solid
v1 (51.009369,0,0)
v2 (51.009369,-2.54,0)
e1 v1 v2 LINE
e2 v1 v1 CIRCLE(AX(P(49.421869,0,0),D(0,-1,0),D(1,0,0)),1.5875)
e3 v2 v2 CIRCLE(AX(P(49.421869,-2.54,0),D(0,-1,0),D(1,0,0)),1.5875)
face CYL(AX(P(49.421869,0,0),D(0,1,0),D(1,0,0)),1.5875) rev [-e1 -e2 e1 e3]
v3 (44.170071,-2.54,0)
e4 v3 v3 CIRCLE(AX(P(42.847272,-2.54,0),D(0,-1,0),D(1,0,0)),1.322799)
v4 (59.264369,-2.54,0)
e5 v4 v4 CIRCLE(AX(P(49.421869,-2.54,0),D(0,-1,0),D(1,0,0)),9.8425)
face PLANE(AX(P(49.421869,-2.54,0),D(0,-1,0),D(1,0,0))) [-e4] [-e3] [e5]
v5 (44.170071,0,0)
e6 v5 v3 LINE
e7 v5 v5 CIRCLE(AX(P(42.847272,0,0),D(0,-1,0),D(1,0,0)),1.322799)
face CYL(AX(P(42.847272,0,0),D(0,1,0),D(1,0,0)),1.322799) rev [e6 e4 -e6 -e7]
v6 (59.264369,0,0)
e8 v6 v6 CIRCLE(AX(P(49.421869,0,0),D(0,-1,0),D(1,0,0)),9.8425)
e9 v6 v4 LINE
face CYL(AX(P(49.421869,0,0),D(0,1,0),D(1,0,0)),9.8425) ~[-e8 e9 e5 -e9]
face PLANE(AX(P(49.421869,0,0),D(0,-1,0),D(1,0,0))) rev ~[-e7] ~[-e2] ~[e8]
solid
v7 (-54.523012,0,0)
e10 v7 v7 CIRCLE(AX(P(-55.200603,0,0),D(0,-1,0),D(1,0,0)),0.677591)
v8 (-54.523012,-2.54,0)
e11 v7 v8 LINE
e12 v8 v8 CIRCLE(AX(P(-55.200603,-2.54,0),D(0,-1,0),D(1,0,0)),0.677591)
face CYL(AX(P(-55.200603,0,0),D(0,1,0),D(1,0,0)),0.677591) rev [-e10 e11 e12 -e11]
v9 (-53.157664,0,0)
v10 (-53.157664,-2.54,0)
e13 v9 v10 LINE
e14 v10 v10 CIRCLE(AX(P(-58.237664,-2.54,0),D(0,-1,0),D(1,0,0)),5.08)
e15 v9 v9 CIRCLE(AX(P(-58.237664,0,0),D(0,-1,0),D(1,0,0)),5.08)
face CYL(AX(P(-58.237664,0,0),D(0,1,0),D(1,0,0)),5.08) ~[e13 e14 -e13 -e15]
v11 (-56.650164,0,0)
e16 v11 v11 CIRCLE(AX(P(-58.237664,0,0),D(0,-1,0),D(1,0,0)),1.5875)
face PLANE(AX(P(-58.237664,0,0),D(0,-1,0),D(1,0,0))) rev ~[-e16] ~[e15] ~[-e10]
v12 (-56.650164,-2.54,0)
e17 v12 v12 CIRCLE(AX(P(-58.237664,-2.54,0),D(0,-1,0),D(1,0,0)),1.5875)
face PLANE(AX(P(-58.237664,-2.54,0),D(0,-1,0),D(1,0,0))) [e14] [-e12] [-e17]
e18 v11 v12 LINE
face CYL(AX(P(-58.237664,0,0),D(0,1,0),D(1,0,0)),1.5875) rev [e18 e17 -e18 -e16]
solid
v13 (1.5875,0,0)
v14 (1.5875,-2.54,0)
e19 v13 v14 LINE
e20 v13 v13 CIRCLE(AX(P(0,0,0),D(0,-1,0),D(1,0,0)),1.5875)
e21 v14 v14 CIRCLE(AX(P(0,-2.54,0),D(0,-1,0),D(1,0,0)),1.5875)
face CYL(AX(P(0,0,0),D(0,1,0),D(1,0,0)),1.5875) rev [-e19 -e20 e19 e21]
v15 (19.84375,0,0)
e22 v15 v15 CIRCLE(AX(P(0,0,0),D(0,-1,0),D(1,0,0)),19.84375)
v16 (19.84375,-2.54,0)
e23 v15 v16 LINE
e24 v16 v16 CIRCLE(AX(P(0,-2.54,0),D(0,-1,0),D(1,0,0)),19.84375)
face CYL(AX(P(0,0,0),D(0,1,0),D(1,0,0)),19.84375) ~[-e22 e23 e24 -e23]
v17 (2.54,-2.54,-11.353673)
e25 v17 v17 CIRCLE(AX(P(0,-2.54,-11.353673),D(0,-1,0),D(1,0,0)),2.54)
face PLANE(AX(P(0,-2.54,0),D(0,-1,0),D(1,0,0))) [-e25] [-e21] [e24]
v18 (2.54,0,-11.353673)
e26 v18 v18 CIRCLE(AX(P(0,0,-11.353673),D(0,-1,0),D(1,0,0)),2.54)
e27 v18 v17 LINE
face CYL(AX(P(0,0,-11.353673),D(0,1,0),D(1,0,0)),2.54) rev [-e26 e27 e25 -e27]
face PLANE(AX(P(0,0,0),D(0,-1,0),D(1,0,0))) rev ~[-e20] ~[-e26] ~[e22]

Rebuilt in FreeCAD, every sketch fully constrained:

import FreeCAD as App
import Part
import Sketcher
from FreeCAD import Vector
Q = App.Units.Quantity

doc = App.newDocument("Part")
body = doc.addObject("PartDesign::Body", "Body")
body.AllowCompound = True

# Sketch on XZ plane
sketch1 = doc.addObject("Sketcher::SketchObject", "Sketch")
body.addObject(sketch1)
sketch1.AttachmentSupport = (doc.XZ_Plane, [""])
sketch1.MapMode = "FlatFace"
sketch1.addGeometry([
    Part.Circle(Vector(-58.2, 0, 0), Vector(0, 0, 1), 5.1),  # 0
    Part.Circle(Vector(-58.2, 0, 0), Vector(0, 0, 1), 1.6),  # 1
    Part.Circle(Vector(-55.2, 0, 0), Vector(0, 0, 1), 0.7),  # 2
    Part.Circle(Vector(49.4, 0, 0), Vector(0, 0, 1), 9.8),  # 3
    Part.Circle(Vector(42.8, 0, 0), Vector(0, 0, 1), 1.3),  # 4
    Part.Circle(Vector(49.4, 0, 0), Vector(0, 0, 1), 1.6),  # 5
    Part.Circle(Vector(0, 0, 0), Vector(0, 0, 1), 19.8),  # 6
    Part.Circle(Vector(0, -11.4, 0), Vector(0, 0, 1), 2.5),  # 7
    Part.Circle(Vector(0, 0, 0), Vector(0, 0, 1), 1.6),  # 8
], False)
sketch1.addConstraint([
    Sketcher.Constraint("Coincident", 6, 3, -1, 1),
    Sketcher.Constraint("Coincident", 8, 3, -1, 1),
    Sketcher.Constraint("Coincident", 1, 3, 0, 3),
    Sketcher.Constraint("Coincident", 5, 3, 3, 3),
    Sketcher.Constraint("Equal", 1, 5),
    Sketcher.Constraint("Equal", 5, 8),
    Sketcher.Constraint("PointOnObject", 0, 3, -1),
    Sketcher.Constraint("PointOnObject", 2, 3, -1),
    Sketcher.Constraint("PointOnObject", 3, 3, -1),
    Sketcher.Constraint("PointOnObject", 4, 3, -1),
    Sketcher.Constraint("PointOnObject", 7, 3, -2),
    Sketcher.Constraint("Diameter", 0, Q("0.4 in")),
    Sketcher.Constraint("Diameter", 7, Q("0.2 in")),
    Sketcher.Constraint("Diameter", 1, Q("0.125 in")),
    Sketcher.Constraint("Diameter", 3, Q("0.775 in")),
    Sketcher.Constraint("Diameter", 6, Q("1.5625 in")),
    Sketcher.Constraint("Diameter", 4, Q("2.645598 mm")),
    Sketcher.Constraint("Diameter", 2, Q("1.355182 mm")),
    Sketcher.Constraint("DistanceX", -1, 1, 3, 3, Q("49.421869 mm")),
    Sketcher.Constraint("DistanceX", -1, 1, 4, 3, Q("42.847272 mm")),
    Sketcher.Constraint("DistanceX", 0, 3, 2, 3, Q("3.037061 mm")),
    Sketcher.Constraint("DistanceX", 2, 3, 3, 3, Q("104.622472 mm")),
    Sketcher.Constraint("DistanceY", 7, 3, -1, 1, Q("11.353673 mm")),
])
pad1 = doc.addObject("PartDesign::Pad", "Pad")
body.addObject(pad1)
pad1.Profile = sketch1
pad1.Length = Q("0.1 in")

doc.recompute()
